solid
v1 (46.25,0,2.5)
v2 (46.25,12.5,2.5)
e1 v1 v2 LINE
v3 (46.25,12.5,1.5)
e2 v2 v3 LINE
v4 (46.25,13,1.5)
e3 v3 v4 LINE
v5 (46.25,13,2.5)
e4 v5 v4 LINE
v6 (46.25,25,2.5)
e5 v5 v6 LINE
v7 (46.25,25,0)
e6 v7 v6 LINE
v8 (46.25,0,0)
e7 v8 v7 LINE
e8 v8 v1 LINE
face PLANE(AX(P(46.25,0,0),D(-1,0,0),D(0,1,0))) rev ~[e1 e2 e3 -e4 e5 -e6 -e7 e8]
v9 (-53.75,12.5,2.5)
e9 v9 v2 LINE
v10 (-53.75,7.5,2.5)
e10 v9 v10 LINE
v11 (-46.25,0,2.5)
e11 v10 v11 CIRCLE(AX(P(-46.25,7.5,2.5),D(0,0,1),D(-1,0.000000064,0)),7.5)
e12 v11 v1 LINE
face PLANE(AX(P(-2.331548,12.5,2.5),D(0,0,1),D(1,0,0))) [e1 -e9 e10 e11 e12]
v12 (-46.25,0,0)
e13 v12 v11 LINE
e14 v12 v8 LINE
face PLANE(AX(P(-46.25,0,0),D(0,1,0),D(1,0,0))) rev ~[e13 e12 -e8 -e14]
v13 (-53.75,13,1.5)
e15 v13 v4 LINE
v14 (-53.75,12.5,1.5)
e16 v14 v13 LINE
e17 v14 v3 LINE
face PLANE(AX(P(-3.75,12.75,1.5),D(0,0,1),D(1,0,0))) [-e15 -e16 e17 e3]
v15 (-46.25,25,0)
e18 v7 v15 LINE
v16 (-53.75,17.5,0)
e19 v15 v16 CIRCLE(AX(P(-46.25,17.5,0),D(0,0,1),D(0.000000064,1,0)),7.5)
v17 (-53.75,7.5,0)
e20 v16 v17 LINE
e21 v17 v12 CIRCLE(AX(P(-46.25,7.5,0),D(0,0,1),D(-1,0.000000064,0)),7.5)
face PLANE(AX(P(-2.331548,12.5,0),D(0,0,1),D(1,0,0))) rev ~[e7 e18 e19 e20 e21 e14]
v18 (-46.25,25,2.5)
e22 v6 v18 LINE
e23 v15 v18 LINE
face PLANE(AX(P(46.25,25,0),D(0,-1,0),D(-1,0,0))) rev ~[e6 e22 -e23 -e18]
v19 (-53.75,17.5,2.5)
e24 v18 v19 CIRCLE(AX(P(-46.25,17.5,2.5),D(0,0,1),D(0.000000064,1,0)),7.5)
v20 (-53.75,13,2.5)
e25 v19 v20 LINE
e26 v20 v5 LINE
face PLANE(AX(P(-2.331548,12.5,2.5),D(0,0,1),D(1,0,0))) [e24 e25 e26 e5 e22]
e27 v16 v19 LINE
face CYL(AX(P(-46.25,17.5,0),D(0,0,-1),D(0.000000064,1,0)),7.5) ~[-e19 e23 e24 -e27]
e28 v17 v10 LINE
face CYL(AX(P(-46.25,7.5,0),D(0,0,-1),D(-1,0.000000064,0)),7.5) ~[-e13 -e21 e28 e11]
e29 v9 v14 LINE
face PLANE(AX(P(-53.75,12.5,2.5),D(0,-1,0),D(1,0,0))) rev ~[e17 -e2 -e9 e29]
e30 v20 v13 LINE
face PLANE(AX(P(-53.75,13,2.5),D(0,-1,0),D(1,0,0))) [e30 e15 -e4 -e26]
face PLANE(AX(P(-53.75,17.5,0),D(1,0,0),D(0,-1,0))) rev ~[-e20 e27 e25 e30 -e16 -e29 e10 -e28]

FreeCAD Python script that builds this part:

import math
import FreeCAD as App
import Part
import Sketcher

V = App.Vector


def add_polygon(sketch, points):
    """Adds a closed chain of lines whose ends are joined by coincident constraints."""
    first, n = sketch.GeometryCount, len(points)
    for a, b in zip(points, points[1:] + points[:1]):
        sketch.addGeometry(Part.LineSegment(App.Vector(*a, 0), App.Vector(*b, 0)), False)
    for i in range(n):
        sketch.addConstraint(Sketcher.Constraint("Coincident", first + i, 2, first + (i + 1) % n, 1))

doc = App.newDocument("Part")
body = doc.addObject("PartDesign::Body", "Body")

# Sketch on XY plane
sketch1 = body.newObject("Sketcher::SketchObject", "Sketch")
sketch1.AttachmentSupport = (doc.getObject("XY_Plane"), [""])
sketch1.MapMode = "FlatFace"
sketch1.addGeometry([
    Part.ArcOfCircle(Part.Circle(V(-46, 7, 0), V(0, 0, 1), 7), math.radians(180), math.radians(270)),  # 0
    Part.LineSegment(V(-46, 0, 0), V(46, 0, 0)),  # 1
    Part.LineSegment(V(46, 0, 0), V(46, 25, 0)),  # 2
    Part.LineSegment(V(46, 25, 0), V(-46, 25, 0)),  # 3
    Part.ArcOfCircle(Part.Circle(V(-46, 18, 0), V(0, 0, 1), 7), math.radians(90), math.radians(180)),  # 4
    Part.LineSegment(V(-54, 18, 0), V(-54, 8, 0)),  # 5
], False)
sketch1.addConstraint([
    Sketcher.Constraint("Tangent", 0, 2, 1, 1),
    Sketcher.Constraint("Coincident", 1, 2, 2, 1),
    Sketcher.Constraint("Coincident", 2, 2, 3, 1),
    Sketcher.Constraint("Tangent", 3, 2, 4, 1),
    Sketcher.Constraint("Tangent", 4, 2, 5, 1),
    Sketcher.Constraint("Tangent", 5, 2, 0, 1),
    Sketcher.Constraint("Horizontal", 1),
    Sketcher.Constraint("Vertical", 2),
    Sketcher.Constraint("Horizontal", 3),
    Sketcher.Constraint("Vertical", 5),
    Sketcher.Constraint("Equal", 0, 4),
    Sketcher.Constraint("Symmetric", 0, 2, 1, 2, -1, 1),
    Sketcher.Constraint("Radius", 0, 7.5),
    Sketcher.Constraint("DistanceY", 2, 1, 2, 2, 25.0),
    Sketcher.Constraint("DistanceX", 1, 1, 1, 2, 92.5),
])
pad1 = body.newObject("PartDesign::Pad", "Pad")
pad1.Profile = sketch1
pad1.Length = 2.5

# Sketch on XY plane
sketch2 = body.newObject("Sketcher::SketchObject", "Sketch001")
sketch2.AttachmentSupport = (doc.getObject("XY_Plane"), [""])
sketch2.MapMode = "FlatFace"
sketch2.AttachmentOffset = App.Placement(V(0, 0, 2.5), App.Rotation())
add_polygon(sketch2, [(-53.8, 13), (-53.8, 12.5), (46.2, 12.5), (46.2, 13)])  # lines 0-3
sketch2.addConstraint([
    Sketcher.Constraint("Vertical", 0),
    Sketcher.Constraint("Horizontal", 1),
    Sketcher.Constraint("Vertical", 2),
    Sketcher.Constraint("Horizontal", 3),
    Sketcher.Constraint("DistanceX", 1, 1, 1, 2, 100.0),
    Sketcher.Constraint("DistanceY", 0, 2, 0, 1, 0.5),
    Sketcher.Constraint("DistanceY", -1, 1, 2, 2, 13.0),
    Sketcher.Constraint("DistanceX", 0, 2, -1, 1, 53.75),
])
pocket1 = body.newObject("PartDesign::Pocket", "Pocket")
pocket1.Profile = sketch2
pocket1.Length = 1

doc.recompute()
